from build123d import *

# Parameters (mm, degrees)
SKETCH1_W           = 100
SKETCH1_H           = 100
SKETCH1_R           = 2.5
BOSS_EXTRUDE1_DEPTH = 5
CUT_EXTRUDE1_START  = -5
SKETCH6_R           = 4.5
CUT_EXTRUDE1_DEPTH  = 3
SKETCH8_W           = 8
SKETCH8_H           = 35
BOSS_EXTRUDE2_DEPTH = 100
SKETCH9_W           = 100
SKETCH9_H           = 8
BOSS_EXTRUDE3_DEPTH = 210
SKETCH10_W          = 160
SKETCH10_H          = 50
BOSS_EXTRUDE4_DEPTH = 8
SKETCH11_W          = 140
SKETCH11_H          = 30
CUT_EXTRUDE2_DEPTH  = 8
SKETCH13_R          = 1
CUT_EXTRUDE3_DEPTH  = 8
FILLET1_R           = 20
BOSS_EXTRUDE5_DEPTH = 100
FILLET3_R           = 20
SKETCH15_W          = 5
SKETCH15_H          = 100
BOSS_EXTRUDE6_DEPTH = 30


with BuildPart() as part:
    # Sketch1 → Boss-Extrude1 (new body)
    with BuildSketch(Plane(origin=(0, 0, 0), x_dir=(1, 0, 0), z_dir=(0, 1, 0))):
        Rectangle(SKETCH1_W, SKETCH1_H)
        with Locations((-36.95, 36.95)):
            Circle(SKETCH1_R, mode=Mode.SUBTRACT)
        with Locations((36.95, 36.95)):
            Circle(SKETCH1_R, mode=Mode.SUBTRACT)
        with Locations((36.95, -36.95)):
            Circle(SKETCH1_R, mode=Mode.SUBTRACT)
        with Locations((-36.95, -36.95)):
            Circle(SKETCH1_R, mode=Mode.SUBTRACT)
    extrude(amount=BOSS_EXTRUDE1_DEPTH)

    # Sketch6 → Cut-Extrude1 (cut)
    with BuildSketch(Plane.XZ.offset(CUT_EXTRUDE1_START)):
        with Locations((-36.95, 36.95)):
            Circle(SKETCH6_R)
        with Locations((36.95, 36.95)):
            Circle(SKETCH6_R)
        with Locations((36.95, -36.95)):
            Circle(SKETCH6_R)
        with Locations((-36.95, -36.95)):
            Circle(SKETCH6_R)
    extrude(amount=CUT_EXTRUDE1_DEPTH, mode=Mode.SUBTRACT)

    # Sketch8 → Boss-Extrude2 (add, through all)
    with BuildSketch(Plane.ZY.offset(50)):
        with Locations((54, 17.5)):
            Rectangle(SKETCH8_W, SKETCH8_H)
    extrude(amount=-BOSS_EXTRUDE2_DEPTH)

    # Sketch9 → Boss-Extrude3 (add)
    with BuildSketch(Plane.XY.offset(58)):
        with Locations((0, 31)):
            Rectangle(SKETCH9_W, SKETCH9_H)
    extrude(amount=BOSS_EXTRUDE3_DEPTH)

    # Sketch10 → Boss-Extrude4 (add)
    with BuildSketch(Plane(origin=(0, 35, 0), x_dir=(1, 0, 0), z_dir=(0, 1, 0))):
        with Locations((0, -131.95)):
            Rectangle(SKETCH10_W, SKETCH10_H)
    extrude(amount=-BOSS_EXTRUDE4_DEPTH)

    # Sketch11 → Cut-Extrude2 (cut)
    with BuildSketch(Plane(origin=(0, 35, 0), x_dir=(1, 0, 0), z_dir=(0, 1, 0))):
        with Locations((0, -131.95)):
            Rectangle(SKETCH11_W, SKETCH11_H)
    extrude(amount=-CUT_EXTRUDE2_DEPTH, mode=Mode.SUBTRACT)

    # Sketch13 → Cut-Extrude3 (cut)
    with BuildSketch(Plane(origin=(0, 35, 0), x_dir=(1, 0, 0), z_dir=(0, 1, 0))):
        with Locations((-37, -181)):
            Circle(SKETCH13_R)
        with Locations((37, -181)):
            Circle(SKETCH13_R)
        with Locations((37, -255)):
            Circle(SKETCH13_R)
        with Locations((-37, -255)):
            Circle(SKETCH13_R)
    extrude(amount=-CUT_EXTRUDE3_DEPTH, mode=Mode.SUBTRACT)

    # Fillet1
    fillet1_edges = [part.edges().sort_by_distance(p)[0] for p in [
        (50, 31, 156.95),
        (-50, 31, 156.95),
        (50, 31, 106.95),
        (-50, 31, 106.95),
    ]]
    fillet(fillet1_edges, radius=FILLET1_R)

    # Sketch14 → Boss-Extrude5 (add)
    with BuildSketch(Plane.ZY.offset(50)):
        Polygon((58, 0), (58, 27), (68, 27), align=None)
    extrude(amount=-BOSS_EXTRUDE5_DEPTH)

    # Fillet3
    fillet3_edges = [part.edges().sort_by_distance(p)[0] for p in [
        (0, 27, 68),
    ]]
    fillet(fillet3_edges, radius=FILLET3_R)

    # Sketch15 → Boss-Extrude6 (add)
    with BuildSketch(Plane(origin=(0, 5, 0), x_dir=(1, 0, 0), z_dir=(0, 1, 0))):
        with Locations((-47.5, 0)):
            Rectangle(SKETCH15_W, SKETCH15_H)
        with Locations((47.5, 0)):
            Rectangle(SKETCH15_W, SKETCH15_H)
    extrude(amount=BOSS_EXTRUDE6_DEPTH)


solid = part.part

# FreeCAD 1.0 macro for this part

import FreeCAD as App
import Part
import Sketcher
from FreeCAD import Vector


def edges_at(feature, points):
    """Names of the edges that pass closest to the given points."""
    edges = feature.Shape.Edges
    near = lambda p: min(range(len(edges)), key=lambda i: edges[i].distToShape(Part.Vertex(*p))[0])
    return sorted({f"Edge{near(p) + 1}" for p in points})


def add_polygon(sketch, points):
    """Adds a closed chain of lines whose ends are joined by coincident constraints."""
    first, n = sketch.GeometryCount, len(points)
    for a, b in zip(points, points[1:] + points[:1]):
        sketch.addGeometry(Part.LineSegment(App.Vector(*a, 0), App.Vector(*b, 0)), False)
    for i in range(n):
        sketch.addConstraint(Sketcher.Constraint("Coincident", first + i, 2, first + (i + 1) % n, 1))

doc = App.newDocument("Part")
params = doc.addObject("Spreadsheet::Sheet", "Params")
for row, (alias, value) in enumerate([
    ("sketch1_diameter", "5 mm"),
    ("sketch1_width", "100 mm"),
    ("pad1_length", "5 mm"),
    ("sketch2_diameter", "9 mm"),
    ("pocket1_length", "3 mm"),
    ("sketch3_width", "35 mm"),
    ("sketch3_height", "8 mm"),
    ("pad2_length", "100 mm"),
    ("sketch4_width", "100 mm"),
    ("sketch4_height", "8 mm"),
    ("pad3_length", "210 mm"),
    ("sketch5_width", "160 mm"),
    ("sketch5_height", "50 mm"),
    ("pad4_length", "8 mm"),
    ("sketch6_width", "140 mm"),
    ("sketch6_height", "30 mm"),
    ("pocket2_length", "8 mm"),
    ("sketch7_diameter", "2 mm"),
    ("pocket3_length", "8 mm"),
    ("fillet_radius", "20 mm"),
    ("sketch8_width", "27 mm"),
    ("sketch8_height", "10 mm"),
    ("pad5_length", "100 mm"),
    ("fillet2_radius", "20 mm"),
    ("sketch9_width", "5 mm"),
    ("sketch9_height", "100 mm"),
    ("pad6_length", "30 mm"),
], start=1):
    params.set(f"A{row}", alias)
    params.set(f"B{row}", "=" + value)
    params.setAlias(f"B{row}", alias)

body = doc.addObject("PartDesign::Body", "Body")

# Sketch on XZ plane
sketch1 = doc.addObject("Sketcher::SketchObject", "Sketch")
body.addObject(sketch1)
sketch1.AttachmentSupport = (doc.XZ_Plane, [""])
sketch1.MapMode = "FlatFace"
add_polygon(sketch1, [(-50, -50), (-50, 50), (50, 50), (50, -50)])  # lines 0-3
sketch1.addGeometry(Part.Circle(Vector(-37, 37, 0), Vector(0, 0, 1), 2.5), False)  # 4
sketch1.addGeometry(Part.Circle(Vector(37, 37, 0), Vector(0, 0, 1), 2.5), False)  # 5
sketch1.addGeometry(Part.Circle(Vector(-37, -37, 0), Vector(0, 0, 1), 2.5), False)  # 6
sketch1.addGeometry(Part.Circle(Vector(37, -37, 0), Vector(0, 0, 1), 2.5), False)  # 7
sketch1.addConstraint(Sketcher.Constraint("Vertical", 0))
sketch1.addConstraint(Sketcher.Constraint("Horizontal", 1))
sketch1.addConstraint(Sketcher.Constraint("Vertical", 2))
sketch1.addConstraint(Sketcher.Constraint("Horizontal", 3))
sketch1.addConstraint(Sketcher.Constraint("Equal", 4, 5))
sketch1.addConstraint(Sketcher.Constraint("Equal", 5, 6))
sketch1.addConstraint(Sketcher.Constraint("Equal", 6, 7))
sketch1.addConstraint(Sketcher.Constraint("Symmetric", 5, 3, 6, 3, -1, 1))
sketch1.addConstraint(Sketcher.Constraint("Symmetric", 4, 3, 7, 3, -1, 1))
sketch1.addConstraint(Sketcher.Constraint("Symmetric", 0, 2, 2, 2, -1, 1))
sketch1.addConstraint(Sketcher.Constraint("Symmetric", 4, 3, 5, 3, -2))
sketch1.addConstraint(Sketcher.Constraint("Equal", 3, 0))
sketch1.addConstraint(Sketcher.Constraint("Diameter", 4, 5.0))
sketch1.addConstraint(Sketcher.Constraint("DistanceX", 1, 1, 1, 2, 100.0))
sketch1.addConstraint(Sketcher.Constraint("DistanceX", 4, 3, 5, 3, 73.9))
sketch1.addConstraint(Sketcher.Constraint("DistanceY", 6, 3, 4, 3, 73.9))
sketch1.setExpression("Constraints[16]", "Params.sketch1_diameter")
sketch1.setExpression("Constraints[17]", "Params.sketch1_width")
pad1 = doc.addObject("PartDesign::Pad", "Pad")
body.addObject(pad1)
pad1.Profile = sketch1
pad1.setExpression("Length", "Params.pad1_length")
pad1.Reversed = True

# Sketch on XZ plane
sketch2 = doc.addObject("Sketcher::SketchObject", "Sketch001")
body.addObject(sketch2)
sketch2.AttachmentSupport = (doc.XZ_Plane, [""])
sketch2.MapMode = "FlatFace"
sketch2.AttachmentOffset = App.Placement(Vector(0, 0, -5), App.Rotation())
sketch2.addGeometry(Part.Circle(Vector(-37, 37, 0), Vector(0, 0, 1), 4.5), False)
sketch2.addGeometry(Part.Circle(Vector(37, 37, 0), Vector(0, 0, 1), 4.5), False)
sketch2.addGeometry(Part.Circle(Vector(37, -37, 0), Vector(0, 0, 1), 4.5), False)
sketch2.addGeometry(Part.Circle(Vector(-37, -37, 0), Vector(0, 0, 1), 4.5), False)
sketch2.addConstraint(Sketcher.Constraint("Equal", 0, 1))
sketch2.addConstraint(Sketcher.Constraint("Equal", 1, 2))
sketch2.addConstraint(Sketcher.Constraint("Equal", 2, 3))
sketch2.addConstraint(Sketcher.Constraint("Symmetric", 0, 3, 2, 3, -1, 1))
sketch2.addConstraint(Sketcher.Constraint("Symmetric", 1, 3, 3, 3, -1, 1))
sketch2.addConstraint(Sketcher.Constraint("Symmetric", 0, 3, 1, 3, -2))
sketch2.addConstraint(Sketcher.Constraint("Diameter", 0, 9.0))
sketch2.addConstraint(Sketcher.Constraint("DistanceX", 0, 3, 1, 3, 73.9))
sketch2.addConstraint(Sketcher.Constraint("DistanceY", 2, 3, 1, 3, 73.9))
sketch2.setExpression("Constraints[6]", "Params.sketch2_diameter")
pocket1 = doc.addObject("PartDesign::Pocket", "Pocket")
body.addObject(pocket1)
pocket1.Profile = sketch2
pocket1.setExpression("Length", "Params.pocket1_length")
pocket1.Reversed = True

# Sketch on YZ plane
sketch3 = doc.addObject("Sketcher::SketchObject", "Sketch002")
body.addObject(sketch3)
sketch3.AttachmentSupport = (doc.YZ_Plane, [""])
sketch3.MapMode = "FlatFace"
sketch3.AttachmentOffset = App.Placement(Vector(0, 0, -50), App.Rotation())
add_polygon(sketch3, [(35, 50), (0, 50), (0, 58), (35, 58)])  # lines 0-3
sketch3.addConstraint(Sketcher.Constraint("Horizontal", 0))
sketch3.addConstraint(Sketcher.Constraint("Vertical", 1))
sketch3.addConstraint(Sketcher.Constraint("Horizontal", 2))
sketch3.addConstraint(Sketcher.Constraint("Vertical", 3))
sketch3.addConstraint(Sketcher.Constraint("PointOnObject", 0, 2, -2))
sketch3.addConstraint(Sketcher.Constraint("DistanceX", 0, 2, 0, 1, 35.0))
sketch3.addConstraint(Sketcher.Constraint("DistanceY", 1, 1, 1, 2, 8.0))
sketch3.addConstraint(Sketcher.Constraint("DistanceY", -1, 1, 0, 2, 50.0))
sketch3.setExpression("Constraints[9]", "Params.sketch3_width")
sketch3.setExpression("Constraints[10]", "Params.sketch3_height")
pad2 = doc.addObject("PartDesign::Pad", "Pad001")
body.addObject(pad2)
pad2.Profile = sketch3
pad2.setExpression("Length", "Params.pad2_length")

# Sketch on XY plane
sketch4 = doc.addObject("Sketcher::SketchObject", "Sketch003")
body.addObject(sketch4)
sketch4.AttachmentSupport = (doc.XY_Plane, [""])
sketch4.MapMode = "FlatFace"
sketch4.AttachmentOffset = App.Placement(Vector(0, 0, 58), App.Rotation())
add_polygon(sketch4, [(-50, 35), (-50, 27), (50, 27), (50, 35)])  # lines 0-3
sketch4.addConstraint(Sketcher.Constraint("Vertical", 0))
sketch4.addConstraint(Sketcher.Constraint("Horizontal", 1))
sketch4.addConstraint(Sketcher.Constraint("Vertical", 2))
sketch4.addConstraint(Sketcher.Constraint("Horizontal", 3))
sketch4.addConstraint(Sketcher.Constraint("DistanceX", 1, 1, 1, 2, 100.0))
sketch4.addConstraint(Sketcher.Constraint("DistanceY", 0, 2, 0, 1, 8.0))
sketch4.addConstraint(Sketcher.Constraint("DistanceX", 0, 2, -1, 1, 50.0))
sketch4.addConstraint(Sketcher.Constraint("DistanceY", -1, 1, 0, 2, 27.0))
sketch4.setExpression("Constraints[8]", "Params.sketch4_width")
sketch4.setExpression("Constraints[9]", "Params.sketch4_height")
pad3 = doc.addObject("PartDesign::Pad", "Pad002")
body.addObject(pad3)
pad3.Profile = sketch4
pad3.setExpression("Length", "Params.pad3_length")

# Sketch on XZ plane
sketch5 = doc.addObject("Sketcher::SketchObject", "Sketch004")
body.addObject(sketch5)
sketch5.AttachmentSupport = (doc.XZ_Plane, [""])
sketch5.MapMode = "FlatFace"
sketch5.AttachmentOffset = App.Placement(Vector(0, 0, -35), App.Rotation())
add_polygon(sketch5, [(-80, 107), (-80, 157), (80, 157), (80, 107)])  # lines 0-3
sketch5.addConstraint(Sketcher.Constraint("Vertical", 0))
sketch5.addConstraint(Sketcher.Constraint("Horizontal", 1))
sketch5.addConstraint(Sketcher.Constraint("Vertical", 2))
sketch5.addConstraint(Sketcher.Constraint("Horizontal", 3))
sketch5.addConstraint(Sketcher.Constraint("DistanceX", 1, 1, 1, 2, 160.0))
sketch5.addConstraint(Sketcher.Constraint("DistanceY", 0, 1, 0, 2, 50.0))
sketch5.addConstraint(Sketcher.Constraint("DistanceX", 0, 2, -1, 1, 80.0))
sketch5.addConstraint(Sketcher.Constraint("DistanceY", -1, 1, 0, 2, 156.95))
sketch5.setExpression("Constraints[8]", "Params.sketch5_width")
sketch5.setExpression("Constraints[9]", "Params.sketch5_height")
pad4 = doc.addObject("PartDesign::Pad", "Pad003")
body.addObject(pad4)
pad4.Profile = sketch5
pad4.setExpression("Length", "Params.pad4_length")

# Sketch on XZ plane
sketch6 = doc.addObject("Sketcher::SketchObject", "Sketch005")
body.addObject(sketch6)
sketch6.AttachmentSupport = (doc.XZ_Plane, [""])
sketch6.MapMode = "FlatFace"
sketch6.AttachmentOffset = App.Placement(Vector(0, 0, -35), App.Rotation())
add_polygon(sketch6, [(-70, 117), (-70, 147), (70, 147), (70, 117)])  # lines 0-3
sketch6.addConstraint(Sketcher.Constraint("Vertical", 0))
sketch6.addConstraint(Sketcher.Constraint("Horizontal", 1))
sketch6.addConstraint(Sketcher.Constraint("Vertical", 2))
sketch6.addConstraint(Sketcher.Constraint("Horizontal", 3))
sketch6.addConstraint(Sketcher.Constraint("DistanceX", 1, 1, 1, 2, 140.0))
sketch6.addConstraint(Sketcher.Constraint("DistanceY", 0, 1, 0, 2, 30.0))
sketch6.addConstraint(Sketcher.Constraint("DistanceX", 0, 2, -1, 1, 70.0))
sketch6.addConstraint(Sketcher.Constraint("DistanceY", -1, 1, 0, 2, 146.95))
sketch6.setExpression("Constraints[8]", "Params.sketch6_width")
sketch6.setExpression("Constraints[9]", "Params.sketch6_height")
pocket2 = doc.addObject("PartDesign::Pocket", "Pocket001")
body.addObject(pocket2)
pocket2.Profile = sketch6
pocket2.setExpression("Length", "Params.pocket2_length")
pocket2.Reversed = True

# Sketch on XZ plane
sketch7 = doc.addObject("Sketcher::SketchObject", "Sketch006")
body.addObject(sketch7)
sketch7.AttachmentSupport = (doc.XZ_Plane, [""])
sketch7.MapMode = "FlatFace"
sketch7.AttachmentOffset = App.Placement(Vector(0, 0, -35), App.Rotation())
sketch7.addGeometry(Part.Circle(Vector(-37, 181, 0), Vector(0, 0, 1), 1), False)
sketch7.addGeometry(Part.Circle(Vector(37, 181, 0), Vector(0, 0, 1), 1), False)
sketch7.addGeometry(Part.Circle(Vector(37, 255, 0), Vector(0, 0, 1), 1), False)
sketch7.addGeometry(Part.Circle(Vector(-37, 255, 0), Vector(0, 0, 1), 1), False)
sketch7.addConstraint(Sketcher.Constraint("Equal", 0, 1))
sketch7.addConstraint(Sketcher.Constraint("Equal", 1, 2))
sketch7.addConstraint(Sketcher.Constraint("Equal", 2, 3))
sketch7.addConstraint(Sketcher.Constraint("Symmetric", 0, 3, 1, 3, -2))
sketch7.addConstraint(Sketcher.Constraint("Symmetric", 2, 3, 3, 3, -2))
sketch7.addConstraint(Sketcher.Constraint("Vertical", 1, 3, 2, 3))
sketch7.addConstraint(Sketcher.Constraint("Diameter", 0, 2.0))
sketch7.addConstraint(Sketcher.Constraint("DistanceX", 0, 3, -1, 1, 37.0))
sketch7.addConstraint(Sketcher.Constraint("DistanceY", -1, 1, 0, 3, 181.0))
sketch7.addConstraint(Sketcher.Constraint("DistanceY", -1, 1, 2, 3, 255.0))
sketch7.setExpression("Constraints[6]", "Params.sketch7_diameter")
pocket3 = doc.addObject("PartDesign::Pocket", "Pocket002")
body.addObject(pocket3)
pocket3.Profile = sketch7
pocket3.setExpression("Length", "Params.pocket3_length")
pocket3.Reversed = True
doc.recompute()

fillet = doc.addObject("PartDesign::Fillet", "Fillet")
body.addObject(fillet)
fillet.Base = (pocket3, edges_at(pocket3, [
    (50, 31, 156.95),
    (-50, 31, 156.95),
    (50, 31, 106.95),
    (-50, 31, 106.95),
]))
fillet.setExpression("Radius", "Params.fillet_radius")

# Sketch on YZ plane
sketch8 = doc.addObject("Sketcher::SketchObject", "Sketch007")
body.addObject(sketch8)
sketch8.AttachmentSupport = (doc.YZ_Plane, [""])
sketch8.MapMode = "FlatFace"
sketch8.AttachmentOffset = App.Placement(Vector(0, 0, -50), App.Rotation())
add_polygon(sketch8, [(27, 58), (0, 58), (27, 68)])  # lines 0-2
sketch8.addConstraint(Sketcher.Constraint("Horizontal", 0))
sketch8.addConstraint(Sketcher.Constraint("Vertical", 2))
sketch8.addConstraint(Sketcher.Constraint("PointOnObject", 0, 2, -2))
sketch8.addConstraint(Sketcher.Constraint("DistanceX", 0, 2, 0, 1, 27.0))
sketch8.addConstraint(Sketcher.Constraint("DistanceY", 2, 2, 2, 1, 10.0))
sketch8.addConstraint(Sketcher.Constraint("DistanceY", -1, 1, 0, 2, 58.0))
sketch8.setExpression("Constraints[6]", "Params.sketch8_width")
sketch8.setExpression("Constraints[7]", "Params.sketch8_height")
pad5 = doc.addObject("PartDesign::Pad", "Pad004")
body.addObject(pad5)
pad5.Profile = sketch8
pad5.setExpression("Length", "Params.pad5_length")
doc.recompute()

fillet2 = doc.addObject("PartDesign::Fillet", "Fillet001")
body.addObject(fillet2)
fillet2.Base = (pad5, edges_at(pad5, [(0, 27, 68)]))
fillet2.setExpression("Radius", "Params.fillet2_radius")

# Sketch on XZ plane
sketch9 = doc.addObject("Sketcher::SketchObject", "Sketch008")
body.addObject(sketch9)
sketch9.AttachmentSupport = (doc.XZ_Plane, [""])
sketch9.MapMode = "FlatFace"
sketch9.AttachmentOffset = App.Placement(Vector(0, 0, -5), App.Rotation())
add_polygon(sketch9, [(-50, -50), (-50, 50), (-45, 50), (-45, -50)])  # lines 0-3
add_polygon(sketch9, [(45, -50), (45, 50), (50, 50), (50, -50)])  # lines 4-7
sketch9.addConstraint(Sketcher.Constraint("Vertical", 0))
sketch9.addConstraint(Sketcher.Constraint("Horizontal", 1))
sketch9.addConstraint(Sketcher.Constraint("Vertical", 2))
sketch9.addConstraint(Sketcher.Constraint("Horizontal", 3))
sketch9.addConstraint(Sketcher.Constraint("Vertical", 4))
sketch9.addConstraint(Sketcher.Constraint("Horizontal", 5))
sketch9.addConstraint(Sketcher.Constraint("Vertical", 6))
sketch9.addConstraint(Sketcher.Constraint("Horizontal", 7))
sketch9.addConstraint(Sketcher.Constraint("Symmetric", 2, 2, 4, 2, -1, 1))
sketch9.addConstraint(Sketcher.Constraint("Symmetric", 0, 2, 6, 2, -1, 1))
sketch9.addConstraint(Sketcher.Constraint("Horizontal", 1, 2, 4, 2))
sketch9.addConstraint(Sketcher.Constraint("DistanceX", 1, 1, 1, 2, 5.0))
sketch9.addConstraint(Sketcher.Constraint("DistanceY", 0, 1, 0, 2, 100.0))
sketch9.addConstraint(Sketcher.Constraint("DistanceX", 0, 2, -1, 1, 50.0))
sketch9.setExpression("Constraints[19]", "Params.sketch9_width")
sketch9.setExpression("Constraints[20]", "Params.sketch9_height")
pad6 = doc.addObject("PartDesign::Pad", "Pad005")
body.addObject(pad6)
pad6.Profile = sketch9
pad6.setExpression("Length", "Params.pad6_length")
pad6.Reversed = True

doc.recompute()
